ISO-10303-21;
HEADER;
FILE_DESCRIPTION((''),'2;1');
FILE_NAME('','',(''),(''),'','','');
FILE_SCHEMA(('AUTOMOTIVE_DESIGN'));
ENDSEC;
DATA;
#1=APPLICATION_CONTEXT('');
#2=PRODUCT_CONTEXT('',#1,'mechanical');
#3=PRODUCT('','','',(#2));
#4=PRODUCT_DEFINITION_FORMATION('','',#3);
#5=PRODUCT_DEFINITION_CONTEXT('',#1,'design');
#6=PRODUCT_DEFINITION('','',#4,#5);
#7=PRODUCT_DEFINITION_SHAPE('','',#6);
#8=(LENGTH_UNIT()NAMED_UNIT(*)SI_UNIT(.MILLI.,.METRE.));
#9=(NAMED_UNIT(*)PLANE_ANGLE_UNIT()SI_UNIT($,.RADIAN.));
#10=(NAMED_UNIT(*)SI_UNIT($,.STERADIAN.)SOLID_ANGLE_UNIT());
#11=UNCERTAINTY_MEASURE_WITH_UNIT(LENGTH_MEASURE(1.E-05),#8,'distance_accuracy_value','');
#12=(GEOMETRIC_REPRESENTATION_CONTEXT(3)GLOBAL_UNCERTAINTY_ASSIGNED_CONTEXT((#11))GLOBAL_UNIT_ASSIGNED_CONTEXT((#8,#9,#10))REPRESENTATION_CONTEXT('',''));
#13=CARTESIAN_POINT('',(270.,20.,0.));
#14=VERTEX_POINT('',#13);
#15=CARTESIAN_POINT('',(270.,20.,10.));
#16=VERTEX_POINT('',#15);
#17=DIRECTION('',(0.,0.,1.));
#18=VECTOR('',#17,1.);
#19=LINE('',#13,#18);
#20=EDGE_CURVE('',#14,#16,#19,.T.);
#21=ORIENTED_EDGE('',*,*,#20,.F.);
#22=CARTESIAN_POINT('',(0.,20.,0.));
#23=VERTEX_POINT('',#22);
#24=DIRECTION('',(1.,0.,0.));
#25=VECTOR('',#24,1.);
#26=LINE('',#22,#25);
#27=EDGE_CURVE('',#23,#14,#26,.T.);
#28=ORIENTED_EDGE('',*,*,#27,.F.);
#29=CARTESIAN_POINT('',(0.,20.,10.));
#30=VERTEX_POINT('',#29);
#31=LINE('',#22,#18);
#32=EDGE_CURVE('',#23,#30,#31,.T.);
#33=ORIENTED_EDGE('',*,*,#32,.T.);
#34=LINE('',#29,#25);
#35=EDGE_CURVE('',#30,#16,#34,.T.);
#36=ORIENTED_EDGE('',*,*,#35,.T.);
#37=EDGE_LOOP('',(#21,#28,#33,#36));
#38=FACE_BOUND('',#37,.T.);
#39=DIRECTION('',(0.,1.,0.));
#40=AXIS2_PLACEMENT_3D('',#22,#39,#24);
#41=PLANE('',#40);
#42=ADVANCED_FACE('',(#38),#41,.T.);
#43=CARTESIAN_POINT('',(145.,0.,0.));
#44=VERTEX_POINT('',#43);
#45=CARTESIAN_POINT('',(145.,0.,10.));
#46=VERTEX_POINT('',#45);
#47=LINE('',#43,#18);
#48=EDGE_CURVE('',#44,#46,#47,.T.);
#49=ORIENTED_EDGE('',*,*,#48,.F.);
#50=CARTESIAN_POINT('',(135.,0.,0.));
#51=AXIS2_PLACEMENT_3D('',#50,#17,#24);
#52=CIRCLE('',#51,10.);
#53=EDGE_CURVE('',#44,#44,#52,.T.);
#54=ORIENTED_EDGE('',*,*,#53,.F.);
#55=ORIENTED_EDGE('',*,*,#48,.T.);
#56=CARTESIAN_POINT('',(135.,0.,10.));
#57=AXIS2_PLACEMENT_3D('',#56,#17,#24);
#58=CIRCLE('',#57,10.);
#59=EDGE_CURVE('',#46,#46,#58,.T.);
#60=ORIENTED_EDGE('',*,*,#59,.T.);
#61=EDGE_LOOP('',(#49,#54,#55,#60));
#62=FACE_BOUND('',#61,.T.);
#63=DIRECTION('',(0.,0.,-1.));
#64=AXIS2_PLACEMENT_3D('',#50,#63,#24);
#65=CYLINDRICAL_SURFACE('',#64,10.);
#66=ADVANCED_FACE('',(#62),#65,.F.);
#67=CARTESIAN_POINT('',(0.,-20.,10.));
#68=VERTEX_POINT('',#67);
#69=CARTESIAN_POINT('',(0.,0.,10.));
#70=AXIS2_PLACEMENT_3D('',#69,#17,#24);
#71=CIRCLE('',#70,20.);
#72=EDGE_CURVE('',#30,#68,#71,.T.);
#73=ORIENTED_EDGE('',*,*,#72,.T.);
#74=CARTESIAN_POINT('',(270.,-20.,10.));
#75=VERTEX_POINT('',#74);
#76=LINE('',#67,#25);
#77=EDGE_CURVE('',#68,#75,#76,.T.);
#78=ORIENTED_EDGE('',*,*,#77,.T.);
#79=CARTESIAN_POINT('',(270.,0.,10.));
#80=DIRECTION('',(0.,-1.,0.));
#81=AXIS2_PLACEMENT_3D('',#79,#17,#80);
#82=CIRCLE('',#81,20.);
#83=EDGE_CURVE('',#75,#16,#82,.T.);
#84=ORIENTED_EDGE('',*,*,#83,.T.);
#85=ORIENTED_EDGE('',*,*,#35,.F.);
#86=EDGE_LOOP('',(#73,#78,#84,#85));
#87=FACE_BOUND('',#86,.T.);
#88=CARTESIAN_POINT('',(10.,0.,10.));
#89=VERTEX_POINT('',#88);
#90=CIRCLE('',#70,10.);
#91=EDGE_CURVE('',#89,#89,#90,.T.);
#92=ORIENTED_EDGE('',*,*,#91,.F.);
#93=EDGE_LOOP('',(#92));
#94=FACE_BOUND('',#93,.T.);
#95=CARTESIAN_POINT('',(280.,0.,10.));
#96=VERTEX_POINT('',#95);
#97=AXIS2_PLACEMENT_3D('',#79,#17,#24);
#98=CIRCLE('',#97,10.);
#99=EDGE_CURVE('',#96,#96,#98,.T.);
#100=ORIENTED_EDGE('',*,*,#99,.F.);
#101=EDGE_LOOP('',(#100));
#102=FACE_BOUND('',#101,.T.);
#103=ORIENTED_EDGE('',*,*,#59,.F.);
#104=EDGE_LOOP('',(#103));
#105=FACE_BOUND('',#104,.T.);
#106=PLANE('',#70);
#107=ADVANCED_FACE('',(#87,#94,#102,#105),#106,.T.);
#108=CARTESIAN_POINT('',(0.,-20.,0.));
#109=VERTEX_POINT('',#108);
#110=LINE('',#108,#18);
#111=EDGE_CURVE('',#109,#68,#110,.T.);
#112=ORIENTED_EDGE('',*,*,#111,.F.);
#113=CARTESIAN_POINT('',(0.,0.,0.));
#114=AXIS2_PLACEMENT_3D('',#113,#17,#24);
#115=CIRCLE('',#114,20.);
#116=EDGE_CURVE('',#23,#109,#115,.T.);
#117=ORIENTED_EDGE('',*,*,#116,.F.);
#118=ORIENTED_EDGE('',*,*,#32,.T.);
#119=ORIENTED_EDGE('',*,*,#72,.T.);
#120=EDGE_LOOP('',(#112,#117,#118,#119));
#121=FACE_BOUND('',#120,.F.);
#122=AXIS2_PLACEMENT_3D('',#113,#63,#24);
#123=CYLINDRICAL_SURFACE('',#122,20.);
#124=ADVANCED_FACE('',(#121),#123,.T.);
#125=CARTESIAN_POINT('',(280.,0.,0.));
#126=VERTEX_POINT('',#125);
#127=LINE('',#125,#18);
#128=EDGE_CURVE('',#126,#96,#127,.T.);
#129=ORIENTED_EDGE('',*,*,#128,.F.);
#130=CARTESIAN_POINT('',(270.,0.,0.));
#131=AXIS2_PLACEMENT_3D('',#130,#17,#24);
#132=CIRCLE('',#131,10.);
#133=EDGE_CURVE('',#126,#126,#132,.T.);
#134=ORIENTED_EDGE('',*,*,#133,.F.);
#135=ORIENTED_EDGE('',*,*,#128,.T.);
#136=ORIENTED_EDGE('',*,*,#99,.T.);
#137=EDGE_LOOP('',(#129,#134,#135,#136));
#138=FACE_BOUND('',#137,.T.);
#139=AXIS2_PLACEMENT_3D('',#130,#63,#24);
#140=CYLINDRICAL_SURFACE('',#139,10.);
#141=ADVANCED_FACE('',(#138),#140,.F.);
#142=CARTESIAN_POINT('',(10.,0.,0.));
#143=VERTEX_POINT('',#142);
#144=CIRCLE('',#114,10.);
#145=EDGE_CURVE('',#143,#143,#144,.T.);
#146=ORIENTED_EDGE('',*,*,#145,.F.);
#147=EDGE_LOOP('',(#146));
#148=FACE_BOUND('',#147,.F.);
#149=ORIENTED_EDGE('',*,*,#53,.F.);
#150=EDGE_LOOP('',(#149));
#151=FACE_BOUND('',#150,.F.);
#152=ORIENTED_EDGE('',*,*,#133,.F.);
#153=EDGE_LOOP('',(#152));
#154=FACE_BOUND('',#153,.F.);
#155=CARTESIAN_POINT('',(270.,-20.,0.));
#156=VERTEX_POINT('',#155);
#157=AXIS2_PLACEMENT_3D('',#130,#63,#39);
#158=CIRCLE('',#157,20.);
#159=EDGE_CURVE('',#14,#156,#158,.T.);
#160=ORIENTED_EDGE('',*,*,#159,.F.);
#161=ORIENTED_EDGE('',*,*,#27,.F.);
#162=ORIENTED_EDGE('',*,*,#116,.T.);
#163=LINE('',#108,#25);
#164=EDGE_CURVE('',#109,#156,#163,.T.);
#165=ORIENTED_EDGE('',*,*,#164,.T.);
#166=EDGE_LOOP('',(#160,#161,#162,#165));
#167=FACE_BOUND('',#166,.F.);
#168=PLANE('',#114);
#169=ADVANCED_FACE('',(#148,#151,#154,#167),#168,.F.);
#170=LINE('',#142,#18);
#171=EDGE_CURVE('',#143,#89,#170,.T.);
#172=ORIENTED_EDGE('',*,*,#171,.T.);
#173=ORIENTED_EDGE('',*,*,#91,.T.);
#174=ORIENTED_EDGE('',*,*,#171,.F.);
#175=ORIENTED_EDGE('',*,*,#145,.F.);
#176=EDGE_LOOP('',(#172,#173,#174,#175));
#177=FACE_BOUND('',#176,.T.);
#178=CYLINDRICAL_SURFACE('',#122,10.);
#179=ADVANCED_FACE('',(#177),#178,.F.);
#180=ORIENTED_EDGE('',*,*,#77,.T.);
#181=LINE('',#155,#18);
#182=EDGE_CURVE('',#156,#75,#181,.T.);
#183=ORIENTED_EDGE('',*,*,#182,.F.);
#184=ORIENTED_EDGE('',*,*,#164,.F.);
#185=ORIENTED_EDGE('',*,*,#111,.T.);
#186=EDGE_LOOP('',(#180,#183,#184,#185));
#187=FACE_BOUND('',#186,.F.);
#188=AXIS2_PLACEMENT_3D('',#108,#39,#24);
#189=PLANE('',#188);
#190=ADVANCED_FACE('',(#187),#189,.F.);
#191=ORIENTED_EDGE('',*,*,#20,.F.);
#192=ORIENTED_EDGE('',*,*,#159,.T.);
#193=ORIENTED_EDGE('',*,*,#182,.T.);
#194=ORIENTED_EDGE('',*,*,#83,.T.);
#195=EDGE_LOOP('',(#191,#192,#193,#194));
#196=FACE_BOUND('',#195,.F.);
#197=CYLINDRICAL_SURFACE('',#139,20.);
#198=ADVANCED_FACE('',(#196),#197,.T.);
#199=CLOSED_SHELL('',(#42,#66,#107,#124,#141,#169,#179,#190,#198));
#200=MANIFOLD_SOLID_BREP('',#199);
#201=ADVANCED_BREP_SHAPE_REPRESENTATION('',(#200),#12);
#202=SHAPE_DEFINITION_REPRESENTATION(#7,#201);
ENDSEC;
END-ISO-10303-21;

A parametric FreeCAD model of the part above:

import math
import FreeCAD as App
import Part
import Sketcher

doc = App.newDocument("Part")
params = doc.addObject("Spreadsheet::Sheet", "Params")
for row, (alias, value) in enumerate([
    ("sketch1_diameter", "20 mm"),
    ("sketch1_radius", "20 mm"),
    ("pad1_length", "10 mm"),
], start=1):
    params.set(f"A{row}", alias)
    params.set(f"B{row}", "=" + value)
    params.setAlias(f"B{row}", alias)

body = doc.addObject("PartDesign::Body", "Body")

# Sketch on XY plane
sketch1 = body.newObject("Sketcher::SketchObject", "Sketch")
sketch1.AttachmentSupport = (doc.getObject("XY_Plane"), [""])
sketch1.MapMode = "FlatFace"
sketch1.addGeometry(Part.ArcOfCircle(Part.Circle(App.Vector(0, 0, 0), App.Vector(0, 0, 1), 20), math.radians(90), math.radians(270)), False)
sketch1.addGeometry(Part.LineSegment(App.Vector(0, -20, 0), App.Vector(270, -20, 0)), False)
sketch1.addGeometry(Part.ArcOfCircle(Part.Circle(App.Vector(270, 0, 0), App.Vector(0, 0, 1), 20), math.radians(-90), math.radians(90)), False)
sketch1.addGeometry(Part.LineSegment(App.Vector(270, 20, 0), App.Vector(0, 20, 0)), False)
sketch1.addGeometry(Part.Circle(App.Vector(0, 0, 0), App.Vector(0, 0, 1), 10), False)
sketch1.addGeometry(Part.Circle(App.Vector(135, 0, 0), App.Vector(0, 0, 1), 10), False)
sketch1.addGeometry(Part.Circle(App.Vector(270, 0, 0), App.Vector(0, 0, 1), 10), False)
sketch1.addConstraint(Sketcher.Constraint("Tangent", 0, 2, 1, 1))
sketch1.addConstraint(Sketcher.Constraint("Tangent", 1, 2, 2, 1))
sketch1.addConstraint(Sketcher.Constraint("Tangent", 2, 2, 3, 1))
sketch1.addConstraint(Sketcher.Constraint("Tangent", 3, 2, 0, 1))
sketch1.addConstraint(Sketcher.Constraint("Horizontal", 1))
sketch1.addConstraint(Sketcher.Constraint("Horizontal", 3))
sketch1.addConstraint(Sketcher.Constraint("Coincident", 0, 3, -1, 1))
sketch1.addConstraint(Sketcher.Constraint("Coincident", 4, 3, -1, 1))
sketch1.addConstraint(Sketcher.Constraint("Coincident", 6, 3, 2, 3))
sketch1.addConstraint(Sketcher.Constraint("Equal", 4, 5))
sketch1.addConstraint(Sketcher.Constraint("Equal", 5, 6))
sketch1.addConstraint(Sketcher.Constraint("PointOnObject", 5, 3, -1))
sketch1.addConstraint(Sketcher.Constraint("Diameter", 4, 20.0))
sketch1.addConstraint(Sketcher.Constraint("Radius", 0, 20.0))
sketch1.addConstraint(Sketcher.Constraint("DistanceX", -1, 1, 5, 3, 135.0))
sketch1.addConstraint(Sketcher.Constraint("DistanceX", 5, 3, 2, 3, 135.0))
sketch1.setExpression("Constraints[12]", "Params.sketch1_diameter")
sketch1.setExpression("Constraints[13]", "Params.sketch1_radius")
pad1 = body.newObject("PartDesign::Pad", "Pad")
pad1.Profile = sketch1
pad1.setExpression("Length", "Params.pad1_length")

doc.recompute()
